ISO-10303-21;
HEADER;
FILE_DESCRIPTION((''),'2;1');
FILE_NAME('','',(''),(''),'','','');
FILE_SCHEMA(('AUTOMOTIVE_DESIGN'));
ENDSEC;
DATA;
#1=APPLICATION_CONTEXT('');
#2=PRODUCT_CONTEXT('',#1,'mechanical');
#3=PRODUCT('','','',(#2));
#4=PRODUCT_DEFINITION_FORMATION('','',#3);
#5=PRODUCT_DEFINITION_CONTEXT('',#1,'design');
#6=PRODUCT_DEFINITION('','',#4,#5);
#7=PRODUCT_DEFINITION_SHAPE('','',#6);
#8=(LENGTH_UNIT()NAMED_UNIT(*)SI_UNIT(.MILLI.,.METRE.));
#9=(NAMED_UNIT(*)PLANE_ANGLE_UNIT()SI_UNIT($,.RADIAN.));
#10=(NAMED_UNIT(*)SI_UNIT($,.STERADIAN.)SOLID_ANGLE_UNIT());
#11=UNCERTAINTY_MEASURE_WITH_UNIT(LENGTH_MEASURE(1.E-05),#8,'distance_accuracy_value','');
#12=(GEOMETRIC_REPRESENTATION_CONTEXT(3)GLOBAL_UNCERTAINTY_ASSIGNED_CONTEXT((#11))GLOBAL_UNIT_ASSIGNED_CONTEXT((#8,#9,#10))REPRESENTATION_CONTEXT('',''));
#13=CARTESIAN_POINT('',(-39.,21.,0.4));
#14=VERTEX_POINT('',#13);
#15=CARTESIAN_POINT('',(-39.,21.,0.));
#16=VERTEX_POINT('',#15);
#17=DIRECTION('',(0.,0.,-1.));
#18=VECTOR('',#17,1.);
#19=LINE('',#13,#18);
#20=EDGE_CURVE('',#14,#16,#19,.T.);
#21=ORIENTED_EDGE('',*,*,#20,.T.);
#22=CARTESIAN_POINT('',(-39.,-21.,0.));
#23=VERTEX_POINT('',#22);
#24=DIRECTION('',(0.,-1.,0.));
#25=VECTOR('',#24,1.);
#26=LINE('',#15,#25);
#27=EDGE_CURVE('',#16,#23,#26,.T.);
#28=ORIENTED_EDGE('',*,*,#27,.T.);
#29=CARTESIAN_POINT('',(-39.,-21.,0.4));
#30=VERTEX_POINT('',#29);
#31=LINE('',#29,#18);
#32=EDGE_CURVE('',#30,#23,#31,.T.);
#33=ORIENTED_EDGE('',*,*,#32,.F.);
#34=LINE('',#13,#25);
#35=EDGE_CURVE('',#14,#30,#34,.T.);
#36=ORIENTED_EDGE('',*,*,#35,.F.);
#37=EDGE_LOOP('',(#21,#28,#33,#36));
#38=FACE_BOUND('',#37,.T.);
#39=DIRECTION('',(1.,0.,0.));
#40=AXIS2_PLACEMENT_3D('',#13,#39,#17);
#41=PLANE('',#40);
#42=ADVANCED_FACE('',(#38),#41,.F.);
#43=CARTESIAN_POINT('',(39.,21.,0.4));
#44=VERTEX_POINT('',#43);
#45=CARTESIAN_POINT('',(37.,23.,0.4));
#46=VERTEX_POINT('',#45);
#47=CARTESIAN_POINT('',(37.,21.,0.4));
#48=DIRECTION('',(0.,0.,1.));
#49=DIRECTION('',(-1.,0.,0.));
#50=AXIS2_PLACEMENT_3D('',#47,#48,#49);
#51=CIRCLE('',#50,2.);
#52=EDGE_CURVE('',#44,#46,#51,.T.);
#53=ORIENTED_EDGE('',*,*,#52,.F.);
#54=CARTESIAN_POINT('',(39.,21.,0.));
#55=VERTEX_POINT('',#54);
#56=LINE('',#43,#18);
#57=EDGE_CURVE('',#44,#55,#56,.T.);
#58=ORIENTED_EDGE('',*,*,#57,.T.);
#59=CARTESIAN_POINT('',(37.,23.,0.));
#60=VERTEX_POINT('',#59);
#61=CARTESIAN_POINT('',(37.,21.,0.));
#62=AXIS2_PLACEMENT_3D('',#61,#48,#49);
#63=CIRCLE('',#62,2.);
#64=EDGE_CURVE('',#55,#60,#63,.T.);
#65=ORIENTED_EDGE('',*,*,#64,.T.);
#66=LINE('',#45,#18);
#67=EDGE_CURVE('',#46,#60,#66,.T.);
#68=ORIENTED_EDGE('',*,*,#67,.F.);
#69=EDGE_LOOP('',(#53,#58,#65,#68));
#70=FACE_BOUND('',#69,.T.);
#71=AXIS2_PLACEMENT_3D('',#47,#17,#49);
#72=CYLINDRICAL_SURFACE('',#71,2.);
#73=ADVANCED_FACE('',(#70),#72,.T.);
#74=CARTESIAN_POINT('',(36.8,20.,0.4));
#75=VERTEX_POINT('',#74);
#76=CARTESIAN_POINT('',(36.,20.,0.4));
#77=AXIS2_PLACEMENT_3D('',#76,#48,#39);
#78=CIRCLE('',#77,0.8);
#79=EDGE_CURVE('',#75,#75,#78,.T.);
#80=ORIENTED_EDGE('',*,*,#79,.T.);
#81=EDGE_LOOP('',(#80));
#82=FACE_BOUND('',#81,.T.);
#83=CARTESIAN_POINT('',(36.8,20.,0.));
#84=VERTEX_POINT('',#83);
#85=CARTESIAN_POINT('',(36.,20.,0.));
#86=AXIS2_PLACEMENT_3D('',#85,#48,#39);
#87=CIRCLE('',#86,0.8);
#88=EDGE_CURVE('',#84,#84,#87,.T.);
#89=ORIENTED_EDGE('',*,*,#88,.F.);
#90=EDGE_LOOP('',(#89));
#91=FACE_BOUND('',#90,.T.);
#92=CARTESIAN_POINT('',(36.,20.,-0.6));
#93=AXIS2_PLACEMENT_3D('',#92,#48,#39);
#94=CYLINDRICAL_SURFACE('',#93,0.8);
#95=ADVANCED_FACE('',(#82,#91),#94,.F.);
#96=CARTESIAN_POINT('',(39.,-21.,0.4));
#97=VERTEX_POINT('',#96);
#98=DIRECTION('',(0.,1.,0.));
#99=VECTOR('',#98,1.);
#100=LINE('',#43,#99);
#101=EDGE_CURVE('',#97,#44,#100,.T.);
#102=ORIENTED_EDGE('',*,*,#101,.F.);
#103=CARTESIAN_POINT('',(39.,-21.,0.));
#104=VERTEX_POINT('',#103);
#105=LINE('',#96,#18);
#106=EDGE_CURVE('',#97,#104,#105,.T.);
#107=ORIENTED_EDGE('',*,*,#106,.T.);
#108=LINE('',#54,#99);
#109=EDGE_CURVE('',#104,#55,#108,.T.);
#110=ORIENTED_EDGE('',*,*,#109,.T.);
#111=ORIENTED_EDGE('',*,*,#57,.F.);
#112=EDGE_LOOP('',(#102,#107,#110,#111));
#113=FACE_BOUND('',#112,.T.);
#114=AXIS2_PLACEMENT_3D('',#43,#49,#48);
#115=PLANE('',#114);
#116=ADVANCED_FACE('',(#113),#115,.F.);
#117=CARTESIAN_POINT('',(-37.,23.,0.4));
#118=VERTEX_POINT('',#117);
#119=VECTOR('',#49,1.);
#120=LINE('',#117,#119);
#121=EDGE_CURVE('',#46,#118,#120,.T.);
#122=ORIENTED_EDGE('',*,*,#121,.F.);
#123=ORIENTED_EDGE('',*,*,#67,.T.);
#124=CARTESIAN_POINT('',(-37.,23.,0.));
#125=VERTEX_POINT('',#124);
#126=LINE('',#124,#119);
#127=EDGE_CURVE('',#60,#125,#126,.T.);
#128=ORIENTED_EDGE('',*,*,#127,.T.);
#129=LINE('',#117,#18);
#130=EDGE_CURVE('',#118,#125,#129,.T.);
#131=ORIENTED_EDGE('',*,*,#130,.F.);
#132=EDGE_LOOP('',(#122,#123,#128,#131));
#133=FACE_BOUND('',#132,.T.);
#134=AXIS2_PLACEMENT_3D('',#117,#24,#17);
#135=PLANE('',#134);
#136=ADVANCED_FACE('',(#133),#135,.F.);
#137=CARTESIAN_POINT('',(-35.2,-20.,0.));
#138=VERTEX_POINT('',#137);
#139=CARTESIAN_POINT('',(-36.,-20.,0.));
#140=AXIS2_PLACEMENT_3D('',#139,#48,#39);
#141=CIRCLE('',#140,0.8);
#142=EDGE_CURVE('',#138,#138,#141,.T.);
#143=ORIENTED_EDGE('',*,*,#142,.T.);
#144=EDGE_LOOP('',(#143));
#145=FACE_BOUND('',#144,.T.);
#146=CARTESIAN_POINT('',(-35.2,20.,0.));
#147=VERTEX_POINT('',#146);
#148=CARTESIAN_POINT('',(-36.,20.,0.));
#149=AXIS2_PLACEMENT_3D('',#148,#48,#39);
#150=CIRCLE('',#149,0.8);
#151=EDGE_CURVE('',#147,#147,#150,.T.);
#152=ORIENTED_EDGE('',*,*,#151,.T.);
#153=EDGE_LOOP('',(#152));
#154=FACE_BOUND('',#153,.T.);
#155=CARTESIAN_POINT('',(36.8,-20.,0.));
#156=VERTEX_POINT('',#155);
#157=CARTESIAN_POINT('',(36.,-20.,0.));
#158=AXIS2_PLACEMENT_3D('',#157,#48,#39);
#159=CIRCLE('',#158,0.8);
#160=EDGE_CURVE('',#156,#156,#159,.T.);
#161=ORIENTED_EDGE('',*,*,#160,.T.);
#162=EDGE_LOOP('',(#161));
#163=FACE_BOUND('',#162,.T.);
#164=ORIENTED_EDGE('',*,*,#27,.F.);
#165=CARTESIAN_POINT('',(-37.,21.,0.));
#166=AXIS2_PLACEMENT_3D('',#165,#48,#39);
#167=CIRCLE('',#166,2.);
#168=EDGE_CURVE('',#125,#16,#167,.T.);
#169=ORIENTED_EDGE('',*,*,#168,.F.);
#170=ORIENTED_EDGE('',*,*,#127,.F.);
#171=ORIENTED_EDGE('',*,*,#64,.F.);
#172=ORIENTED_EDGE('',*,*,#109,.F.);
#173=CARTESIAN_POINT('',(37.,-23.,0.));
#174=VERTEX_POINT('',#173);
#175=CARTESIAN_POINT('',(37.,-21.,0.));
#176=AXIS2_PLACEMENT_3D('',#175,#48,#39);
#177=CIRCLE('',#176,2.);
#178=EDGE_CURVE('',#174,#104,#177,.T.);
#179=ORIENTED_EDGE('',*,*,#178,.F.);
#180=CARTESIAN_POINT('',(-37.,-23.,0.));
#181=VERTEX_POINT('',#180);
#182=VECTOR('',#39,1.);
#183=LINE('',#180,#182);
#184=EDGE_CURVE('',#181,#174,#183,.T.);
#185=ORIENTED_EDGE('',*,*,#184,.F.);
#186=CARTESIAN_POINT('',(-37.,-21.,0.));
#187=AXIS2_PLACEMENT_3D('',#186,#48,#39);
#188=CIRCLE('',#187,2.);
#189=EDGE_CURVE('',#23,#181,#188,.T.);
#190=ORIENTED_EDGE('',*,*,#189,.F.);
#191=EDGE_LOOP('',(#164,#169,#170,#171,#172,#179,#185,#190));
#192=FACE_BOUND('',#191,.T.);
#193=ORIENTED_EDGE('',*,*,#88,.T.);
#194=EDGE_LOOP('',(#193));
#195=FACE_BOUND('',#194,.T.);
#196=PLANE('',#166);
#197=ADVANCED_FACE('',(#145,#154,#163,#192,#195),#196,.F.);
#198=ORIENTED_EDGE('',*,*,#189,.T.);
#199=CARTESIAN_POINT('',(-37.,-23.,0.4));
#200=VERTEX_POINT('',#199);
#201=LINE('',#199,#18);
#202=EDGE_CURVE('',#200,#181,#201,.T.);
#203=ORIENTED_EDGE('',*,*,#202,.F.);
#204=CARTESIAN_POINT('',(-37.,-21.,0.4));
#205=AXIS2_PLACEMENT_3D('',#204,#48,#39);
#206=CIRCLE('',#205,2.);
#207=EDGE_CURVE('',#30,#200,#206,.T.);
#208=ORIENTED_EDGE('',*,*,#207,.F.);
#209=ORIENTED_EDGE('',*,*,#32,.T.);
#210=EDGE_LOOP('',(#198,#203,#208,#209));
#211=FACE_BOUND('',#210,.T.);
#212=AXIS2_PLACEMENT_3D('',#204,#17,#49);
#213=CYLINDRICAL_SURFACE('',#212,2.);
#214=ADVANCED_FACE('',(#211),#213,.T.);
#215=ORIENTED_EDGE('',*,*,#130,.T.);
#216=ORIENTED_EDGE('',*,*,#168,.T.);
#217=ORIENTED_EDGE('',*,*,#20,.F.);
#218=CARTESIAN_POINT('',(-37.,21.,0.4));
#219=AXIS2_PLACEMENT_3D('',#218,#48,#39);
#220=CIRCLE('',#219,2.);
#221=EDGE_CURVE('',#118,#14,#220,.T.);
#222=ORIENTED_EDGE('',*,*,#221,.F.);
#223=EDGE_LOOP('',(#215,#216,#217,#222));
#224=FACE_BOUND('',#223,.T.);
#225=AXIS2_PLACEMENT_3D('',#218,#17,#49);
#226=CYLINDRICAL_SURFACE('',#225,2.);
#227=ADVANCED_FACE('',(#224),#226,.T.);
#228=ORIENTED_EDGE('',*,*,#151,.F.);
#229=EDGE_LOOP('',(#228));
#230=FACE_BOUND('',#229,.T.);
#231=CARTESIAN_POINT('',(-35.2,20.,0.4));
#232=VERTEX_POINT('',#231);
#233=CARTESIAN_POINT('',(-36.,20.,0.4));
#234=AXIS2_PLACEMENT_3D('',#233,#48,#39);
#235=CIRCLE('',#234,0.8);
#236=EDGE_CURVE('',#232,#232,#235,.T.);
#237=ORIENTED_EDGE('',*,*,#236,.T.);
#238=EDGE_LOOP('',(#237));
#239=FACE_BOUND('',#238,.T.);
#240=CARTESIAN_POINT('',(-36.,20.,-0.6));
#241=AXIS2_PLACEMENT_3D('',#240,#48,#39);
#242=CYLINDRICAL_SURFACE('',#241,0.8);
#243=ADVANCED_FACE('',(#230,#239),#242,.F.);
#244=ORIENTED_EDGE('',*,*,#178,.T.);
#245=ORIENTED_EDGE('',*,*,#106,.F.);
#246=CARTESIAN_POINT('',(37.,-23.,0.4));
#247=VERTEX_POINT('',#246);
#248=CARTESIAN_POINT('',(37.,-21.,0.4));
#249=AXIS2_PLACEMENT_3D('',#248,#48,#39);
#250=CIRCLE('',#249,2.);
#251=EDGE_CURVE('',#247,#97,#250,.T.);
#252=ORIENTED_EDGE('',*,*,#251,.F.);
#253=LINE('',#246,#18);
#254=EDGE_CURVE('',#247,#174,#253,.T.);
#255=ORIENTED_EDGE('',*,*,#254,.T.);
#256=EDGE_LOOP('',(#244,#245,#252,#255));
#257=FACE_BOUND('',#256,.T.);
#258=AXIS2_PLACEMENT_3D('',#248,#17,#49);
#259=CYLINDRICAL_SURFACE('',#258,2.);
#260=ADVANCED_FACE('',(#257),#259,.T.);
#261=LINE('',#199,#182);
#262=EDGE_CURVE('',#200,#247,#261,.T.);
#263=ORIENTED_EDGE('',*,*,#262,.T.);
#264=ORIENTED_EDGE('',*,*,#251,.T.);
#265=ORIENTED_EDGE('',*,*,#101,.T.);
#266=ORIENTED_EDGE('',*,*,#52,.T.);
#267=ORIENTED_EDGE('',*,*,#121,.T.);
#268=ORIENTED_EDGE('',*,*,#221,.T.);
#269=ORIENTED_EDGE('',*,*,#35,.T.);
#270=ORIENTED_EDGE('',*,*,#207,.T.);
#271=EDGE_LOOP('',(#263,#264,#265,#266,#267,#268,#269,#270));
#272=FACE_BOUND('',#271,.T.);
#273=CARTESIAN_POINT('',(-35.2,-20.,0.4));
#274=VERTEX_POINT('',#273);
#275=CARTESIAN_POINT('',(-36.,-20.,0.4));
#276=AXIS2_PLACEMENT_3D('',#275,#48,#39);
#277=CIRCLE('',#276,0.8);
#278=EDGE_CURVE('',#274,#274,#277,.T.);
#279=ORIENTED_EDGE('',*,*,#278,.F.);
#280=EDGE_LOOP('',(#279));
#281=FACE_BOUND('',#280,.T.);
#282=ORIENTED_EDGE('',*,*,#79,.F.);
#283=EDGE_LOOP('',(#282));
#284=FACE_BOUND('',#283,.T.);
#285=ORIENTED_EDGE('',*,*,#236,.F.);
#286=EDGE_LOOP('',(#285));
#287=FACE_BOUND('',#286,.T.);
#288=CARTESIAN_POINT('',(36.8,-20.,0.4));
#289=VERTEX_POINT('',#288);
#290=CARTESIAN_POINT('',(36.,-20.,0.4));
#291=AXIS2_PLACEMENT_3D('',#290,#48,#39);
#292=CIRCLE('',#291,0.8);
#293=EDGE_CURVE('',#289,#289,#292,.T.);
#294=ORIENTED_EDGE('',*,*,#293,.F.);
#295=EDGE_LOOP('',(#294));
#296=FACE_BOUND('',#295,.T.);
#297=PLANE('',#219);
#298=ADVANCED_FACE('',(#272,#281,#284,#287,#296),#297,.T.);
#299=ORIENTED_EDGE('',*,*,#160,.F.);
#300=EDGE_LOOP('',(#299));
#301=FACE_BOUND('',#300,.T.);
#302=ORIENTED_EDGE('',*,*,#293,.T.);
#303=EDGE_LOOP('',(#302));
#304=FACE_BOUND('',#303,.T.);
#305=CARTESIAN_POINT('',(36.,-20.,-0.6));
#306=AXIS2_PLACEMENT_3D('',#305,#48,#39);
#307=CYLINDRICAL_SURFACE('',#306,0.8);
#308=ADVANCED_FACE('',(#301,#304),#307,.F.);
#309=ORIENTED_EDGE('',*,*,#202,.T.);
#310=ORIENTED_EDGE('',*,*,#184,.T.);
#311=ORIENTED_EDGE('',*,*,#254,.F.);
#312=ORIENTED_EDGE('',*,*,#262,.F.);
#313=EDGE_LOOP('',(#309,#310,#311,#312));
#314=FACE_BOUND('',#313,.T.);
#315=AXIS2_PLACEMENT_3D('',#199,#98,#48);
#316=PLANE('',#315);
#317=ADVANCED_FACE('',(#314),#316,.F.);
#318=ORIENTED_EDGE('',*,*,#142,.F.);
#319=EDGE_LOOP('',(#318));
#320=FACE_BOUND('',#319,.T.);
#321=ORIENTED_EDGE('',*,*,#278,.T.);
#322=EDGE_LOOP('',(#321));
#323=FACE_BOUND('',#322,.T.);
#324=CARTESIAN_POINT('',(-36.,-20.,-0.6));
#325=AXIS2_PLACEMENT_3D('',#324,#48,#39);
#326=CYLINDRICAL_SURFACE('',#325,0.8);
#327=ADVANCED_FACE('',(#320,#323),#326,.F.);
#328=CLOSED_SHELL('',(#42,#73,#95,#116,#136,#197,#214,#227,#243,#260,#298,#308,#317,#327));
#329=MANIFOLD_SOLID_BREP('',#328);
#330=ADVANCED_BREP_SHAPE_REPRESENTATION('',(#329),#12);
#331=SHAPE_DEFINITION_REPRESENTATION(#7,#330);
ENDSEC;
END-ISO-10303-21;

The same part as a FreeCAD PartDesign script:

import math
import FreeCAD as App
import Part
import Sketcher

V = App.Vector

doc = App.newDocument("Part")
body = doc.addObject("PartDesign::Body", "Body")

# Sketch on XY plane
sketch1 = doc.addObject("Sketcher::SketchObject", "Sketch")
body.addObject(sketch1)
sketch1.AttachmentSupport = (doc.XY_Plane, [""])
sketch1.MapMode = "FlatFace"
sketch1.addGeometry(Part.LineSegment(V(37, 23, 0), V(-37, 23, 0)), False)
sketch1.addGeometry(Part.ArcOfCircle(Part.Circle(V(-37, 21, 0), V(0, 0, 1), 2), math.radians(90), math.radians(180)), False)
sketch1.addGeometry(Part.LineSegment(V(-39, 21, 0), V(-39, -21, 0)), False)
sketch1.addGeometry(Part.ArcOfCircle(Part.Circle(V(-37, -21, 0), V(0, 0, 1), 2), math.radians(-180), math.radians(-90)), False)
sketch1.addGeometry(Part.LineSegment(V(-37, -23, 0), V(37, -23, 0)), False)
sketch1.addGeometry(Part.ArcOfCircle(Part.Circle(V(37, -21, 0), V(0, 0, 1), 2), math.radians(-90), math.radians(0)), False)
sketch1.addGeometry(Part.LineSegment(V(39, -21, 0), V(39, 21, 0)), False)
sketch1.addGeometry(Part.ArcOfCircle(Part.Circle(V(37, 21, 0), V(0, 0, 1), 2), math.radians(0), math.radians(90)), False)
sketch1.addConstraint(Sketcher.Constraint("Tangent", 0, 2, 1, 1))
sketch1.addConstraint(Sketcher.Constraint("Tangent", 1, 2, 2, 1))
sketch1.addConstraint(Sketcher.Constraint("Tangent", 2, 2, 3, 1))
sketch1.addConstraint(Sketcher.Constraint("Tangent", 3, 2, 4, 1))
sketch1.addConstraint(Sketcher.Constraint("Tangent", 4, 2, 5, 1))
sketch1.addConstraint(Sketcher.Constraint("Tangent", 5, 2, 6, 1))
sketch1.addConstraint(Sketcher.Constraint("Tangent", 6, 2, 7, 1))
sketch1.addConstraint(Sketcher.Constraint("Tangent", 7, 2, 0, 1))
sketch1.addConstraint(Sketcher.Constraint("Horizontal", 0))
sketch1.addConstraint(Sketcher.Constraint("Vertical", 2))
sketch1.addConstraint(Sketcher.Constraint("Horizontal", 4))
sketch1.addConstraint(Sketcher.Constraint("Vertical", 6))
sketch1.addConstraint(Sketcher.Constraint("Equal", 1, 3))
sketch1.addConstraint(Sketcher.Constraint("Equal", 3, 5))
sketch1.addConstraint(Sketcher.Constraint("Equal", 5, 7))
sketch1.addConstraint(Sketcher.Constraint("Symmetric", 1, 3, 5, 3, -1, 1))
sketch1.addConstraint(Sketcher.Constraint("Radius", 1, 2.0))
sketch1.addConstraint(Sketcher.Constraint("DistanceX", 0, 2, 0, 1, 74.0))
sketch1.addConstraint(Sketcher.Constraint("DistanceY", 2, 2, 2, 1, 42.0))
pad1 = doc.addObject("PartDesign::Pad", "Pad")
body.addObject(pad1)
pad1.Profile = sketch1
pad1.Length = 0.4

# Sketch on XY plane
sketch2 = doc.addObject("Sketcher::SketchObject", "Sketch001")
body.addObject(sketch2)
sketch2.AttachmentSupport = (doc.XY_Plane, [""])
sketch2.MapMode = "FlatFace"
sketch2.AttachmentOffset = App.Placement(V(0, 0, 0.4), App.Rotation())
sketch2.addGeometry(Part.Circle(V(-36, 20, 0), V(0, 0, 1), 0.8), False)
sketch2.addGeometry(Part.Circle(V(36, 20, 0), V(0, 0, 1), 0.8), False)
sketch2.addGeometry(Part.Circle(V(36, -20, 0), V(0, 0, 1), 0.8), False)
sketch2.addGeometry(Part.Circle(V(-36, -20, 0), V(0, 0, 1), 0.8), False)
sketch2.addConstraint(Sketcher.Constraint("Equal", 0, 1))
sketch2.addConstraint(Sketcher.Constraint("Equal", 1, 2))
sketch2.addConstraint(Sketcher.Constraint("Equal", 2, 3))
sketch2.addConstraint(Sketcher.Constraint("Symmetric", 0, 3, 2, 3, -1, 1))
sketch2.addConstraint(Sketcher.Constraint("Symmetric", 1, 3, 3, 3, -1, 1))
sketch2.addConstraint(Sketcher.Constraint("Symmetric", 0, 3, 1, 3, -2))
sketch2.addConstraint(Sketcher.Constraint("Diameter", 0, 1.6))
sketch2.addConstraint(Sketcher.Constraint("DistanceX", 0, 3, -1, 1, 36.0))
sketch2.addConstraint(Sketcher.Constraint("DistanceY", -1, 1, 0, 3, 20.0))
pocket1 = doc.addObject("PartDesign::Pocket", "Pocket")
body.addObject(pocket1)
pocket1.Profile = sketch2
pocket1.Length = 1

doc.recompute()
